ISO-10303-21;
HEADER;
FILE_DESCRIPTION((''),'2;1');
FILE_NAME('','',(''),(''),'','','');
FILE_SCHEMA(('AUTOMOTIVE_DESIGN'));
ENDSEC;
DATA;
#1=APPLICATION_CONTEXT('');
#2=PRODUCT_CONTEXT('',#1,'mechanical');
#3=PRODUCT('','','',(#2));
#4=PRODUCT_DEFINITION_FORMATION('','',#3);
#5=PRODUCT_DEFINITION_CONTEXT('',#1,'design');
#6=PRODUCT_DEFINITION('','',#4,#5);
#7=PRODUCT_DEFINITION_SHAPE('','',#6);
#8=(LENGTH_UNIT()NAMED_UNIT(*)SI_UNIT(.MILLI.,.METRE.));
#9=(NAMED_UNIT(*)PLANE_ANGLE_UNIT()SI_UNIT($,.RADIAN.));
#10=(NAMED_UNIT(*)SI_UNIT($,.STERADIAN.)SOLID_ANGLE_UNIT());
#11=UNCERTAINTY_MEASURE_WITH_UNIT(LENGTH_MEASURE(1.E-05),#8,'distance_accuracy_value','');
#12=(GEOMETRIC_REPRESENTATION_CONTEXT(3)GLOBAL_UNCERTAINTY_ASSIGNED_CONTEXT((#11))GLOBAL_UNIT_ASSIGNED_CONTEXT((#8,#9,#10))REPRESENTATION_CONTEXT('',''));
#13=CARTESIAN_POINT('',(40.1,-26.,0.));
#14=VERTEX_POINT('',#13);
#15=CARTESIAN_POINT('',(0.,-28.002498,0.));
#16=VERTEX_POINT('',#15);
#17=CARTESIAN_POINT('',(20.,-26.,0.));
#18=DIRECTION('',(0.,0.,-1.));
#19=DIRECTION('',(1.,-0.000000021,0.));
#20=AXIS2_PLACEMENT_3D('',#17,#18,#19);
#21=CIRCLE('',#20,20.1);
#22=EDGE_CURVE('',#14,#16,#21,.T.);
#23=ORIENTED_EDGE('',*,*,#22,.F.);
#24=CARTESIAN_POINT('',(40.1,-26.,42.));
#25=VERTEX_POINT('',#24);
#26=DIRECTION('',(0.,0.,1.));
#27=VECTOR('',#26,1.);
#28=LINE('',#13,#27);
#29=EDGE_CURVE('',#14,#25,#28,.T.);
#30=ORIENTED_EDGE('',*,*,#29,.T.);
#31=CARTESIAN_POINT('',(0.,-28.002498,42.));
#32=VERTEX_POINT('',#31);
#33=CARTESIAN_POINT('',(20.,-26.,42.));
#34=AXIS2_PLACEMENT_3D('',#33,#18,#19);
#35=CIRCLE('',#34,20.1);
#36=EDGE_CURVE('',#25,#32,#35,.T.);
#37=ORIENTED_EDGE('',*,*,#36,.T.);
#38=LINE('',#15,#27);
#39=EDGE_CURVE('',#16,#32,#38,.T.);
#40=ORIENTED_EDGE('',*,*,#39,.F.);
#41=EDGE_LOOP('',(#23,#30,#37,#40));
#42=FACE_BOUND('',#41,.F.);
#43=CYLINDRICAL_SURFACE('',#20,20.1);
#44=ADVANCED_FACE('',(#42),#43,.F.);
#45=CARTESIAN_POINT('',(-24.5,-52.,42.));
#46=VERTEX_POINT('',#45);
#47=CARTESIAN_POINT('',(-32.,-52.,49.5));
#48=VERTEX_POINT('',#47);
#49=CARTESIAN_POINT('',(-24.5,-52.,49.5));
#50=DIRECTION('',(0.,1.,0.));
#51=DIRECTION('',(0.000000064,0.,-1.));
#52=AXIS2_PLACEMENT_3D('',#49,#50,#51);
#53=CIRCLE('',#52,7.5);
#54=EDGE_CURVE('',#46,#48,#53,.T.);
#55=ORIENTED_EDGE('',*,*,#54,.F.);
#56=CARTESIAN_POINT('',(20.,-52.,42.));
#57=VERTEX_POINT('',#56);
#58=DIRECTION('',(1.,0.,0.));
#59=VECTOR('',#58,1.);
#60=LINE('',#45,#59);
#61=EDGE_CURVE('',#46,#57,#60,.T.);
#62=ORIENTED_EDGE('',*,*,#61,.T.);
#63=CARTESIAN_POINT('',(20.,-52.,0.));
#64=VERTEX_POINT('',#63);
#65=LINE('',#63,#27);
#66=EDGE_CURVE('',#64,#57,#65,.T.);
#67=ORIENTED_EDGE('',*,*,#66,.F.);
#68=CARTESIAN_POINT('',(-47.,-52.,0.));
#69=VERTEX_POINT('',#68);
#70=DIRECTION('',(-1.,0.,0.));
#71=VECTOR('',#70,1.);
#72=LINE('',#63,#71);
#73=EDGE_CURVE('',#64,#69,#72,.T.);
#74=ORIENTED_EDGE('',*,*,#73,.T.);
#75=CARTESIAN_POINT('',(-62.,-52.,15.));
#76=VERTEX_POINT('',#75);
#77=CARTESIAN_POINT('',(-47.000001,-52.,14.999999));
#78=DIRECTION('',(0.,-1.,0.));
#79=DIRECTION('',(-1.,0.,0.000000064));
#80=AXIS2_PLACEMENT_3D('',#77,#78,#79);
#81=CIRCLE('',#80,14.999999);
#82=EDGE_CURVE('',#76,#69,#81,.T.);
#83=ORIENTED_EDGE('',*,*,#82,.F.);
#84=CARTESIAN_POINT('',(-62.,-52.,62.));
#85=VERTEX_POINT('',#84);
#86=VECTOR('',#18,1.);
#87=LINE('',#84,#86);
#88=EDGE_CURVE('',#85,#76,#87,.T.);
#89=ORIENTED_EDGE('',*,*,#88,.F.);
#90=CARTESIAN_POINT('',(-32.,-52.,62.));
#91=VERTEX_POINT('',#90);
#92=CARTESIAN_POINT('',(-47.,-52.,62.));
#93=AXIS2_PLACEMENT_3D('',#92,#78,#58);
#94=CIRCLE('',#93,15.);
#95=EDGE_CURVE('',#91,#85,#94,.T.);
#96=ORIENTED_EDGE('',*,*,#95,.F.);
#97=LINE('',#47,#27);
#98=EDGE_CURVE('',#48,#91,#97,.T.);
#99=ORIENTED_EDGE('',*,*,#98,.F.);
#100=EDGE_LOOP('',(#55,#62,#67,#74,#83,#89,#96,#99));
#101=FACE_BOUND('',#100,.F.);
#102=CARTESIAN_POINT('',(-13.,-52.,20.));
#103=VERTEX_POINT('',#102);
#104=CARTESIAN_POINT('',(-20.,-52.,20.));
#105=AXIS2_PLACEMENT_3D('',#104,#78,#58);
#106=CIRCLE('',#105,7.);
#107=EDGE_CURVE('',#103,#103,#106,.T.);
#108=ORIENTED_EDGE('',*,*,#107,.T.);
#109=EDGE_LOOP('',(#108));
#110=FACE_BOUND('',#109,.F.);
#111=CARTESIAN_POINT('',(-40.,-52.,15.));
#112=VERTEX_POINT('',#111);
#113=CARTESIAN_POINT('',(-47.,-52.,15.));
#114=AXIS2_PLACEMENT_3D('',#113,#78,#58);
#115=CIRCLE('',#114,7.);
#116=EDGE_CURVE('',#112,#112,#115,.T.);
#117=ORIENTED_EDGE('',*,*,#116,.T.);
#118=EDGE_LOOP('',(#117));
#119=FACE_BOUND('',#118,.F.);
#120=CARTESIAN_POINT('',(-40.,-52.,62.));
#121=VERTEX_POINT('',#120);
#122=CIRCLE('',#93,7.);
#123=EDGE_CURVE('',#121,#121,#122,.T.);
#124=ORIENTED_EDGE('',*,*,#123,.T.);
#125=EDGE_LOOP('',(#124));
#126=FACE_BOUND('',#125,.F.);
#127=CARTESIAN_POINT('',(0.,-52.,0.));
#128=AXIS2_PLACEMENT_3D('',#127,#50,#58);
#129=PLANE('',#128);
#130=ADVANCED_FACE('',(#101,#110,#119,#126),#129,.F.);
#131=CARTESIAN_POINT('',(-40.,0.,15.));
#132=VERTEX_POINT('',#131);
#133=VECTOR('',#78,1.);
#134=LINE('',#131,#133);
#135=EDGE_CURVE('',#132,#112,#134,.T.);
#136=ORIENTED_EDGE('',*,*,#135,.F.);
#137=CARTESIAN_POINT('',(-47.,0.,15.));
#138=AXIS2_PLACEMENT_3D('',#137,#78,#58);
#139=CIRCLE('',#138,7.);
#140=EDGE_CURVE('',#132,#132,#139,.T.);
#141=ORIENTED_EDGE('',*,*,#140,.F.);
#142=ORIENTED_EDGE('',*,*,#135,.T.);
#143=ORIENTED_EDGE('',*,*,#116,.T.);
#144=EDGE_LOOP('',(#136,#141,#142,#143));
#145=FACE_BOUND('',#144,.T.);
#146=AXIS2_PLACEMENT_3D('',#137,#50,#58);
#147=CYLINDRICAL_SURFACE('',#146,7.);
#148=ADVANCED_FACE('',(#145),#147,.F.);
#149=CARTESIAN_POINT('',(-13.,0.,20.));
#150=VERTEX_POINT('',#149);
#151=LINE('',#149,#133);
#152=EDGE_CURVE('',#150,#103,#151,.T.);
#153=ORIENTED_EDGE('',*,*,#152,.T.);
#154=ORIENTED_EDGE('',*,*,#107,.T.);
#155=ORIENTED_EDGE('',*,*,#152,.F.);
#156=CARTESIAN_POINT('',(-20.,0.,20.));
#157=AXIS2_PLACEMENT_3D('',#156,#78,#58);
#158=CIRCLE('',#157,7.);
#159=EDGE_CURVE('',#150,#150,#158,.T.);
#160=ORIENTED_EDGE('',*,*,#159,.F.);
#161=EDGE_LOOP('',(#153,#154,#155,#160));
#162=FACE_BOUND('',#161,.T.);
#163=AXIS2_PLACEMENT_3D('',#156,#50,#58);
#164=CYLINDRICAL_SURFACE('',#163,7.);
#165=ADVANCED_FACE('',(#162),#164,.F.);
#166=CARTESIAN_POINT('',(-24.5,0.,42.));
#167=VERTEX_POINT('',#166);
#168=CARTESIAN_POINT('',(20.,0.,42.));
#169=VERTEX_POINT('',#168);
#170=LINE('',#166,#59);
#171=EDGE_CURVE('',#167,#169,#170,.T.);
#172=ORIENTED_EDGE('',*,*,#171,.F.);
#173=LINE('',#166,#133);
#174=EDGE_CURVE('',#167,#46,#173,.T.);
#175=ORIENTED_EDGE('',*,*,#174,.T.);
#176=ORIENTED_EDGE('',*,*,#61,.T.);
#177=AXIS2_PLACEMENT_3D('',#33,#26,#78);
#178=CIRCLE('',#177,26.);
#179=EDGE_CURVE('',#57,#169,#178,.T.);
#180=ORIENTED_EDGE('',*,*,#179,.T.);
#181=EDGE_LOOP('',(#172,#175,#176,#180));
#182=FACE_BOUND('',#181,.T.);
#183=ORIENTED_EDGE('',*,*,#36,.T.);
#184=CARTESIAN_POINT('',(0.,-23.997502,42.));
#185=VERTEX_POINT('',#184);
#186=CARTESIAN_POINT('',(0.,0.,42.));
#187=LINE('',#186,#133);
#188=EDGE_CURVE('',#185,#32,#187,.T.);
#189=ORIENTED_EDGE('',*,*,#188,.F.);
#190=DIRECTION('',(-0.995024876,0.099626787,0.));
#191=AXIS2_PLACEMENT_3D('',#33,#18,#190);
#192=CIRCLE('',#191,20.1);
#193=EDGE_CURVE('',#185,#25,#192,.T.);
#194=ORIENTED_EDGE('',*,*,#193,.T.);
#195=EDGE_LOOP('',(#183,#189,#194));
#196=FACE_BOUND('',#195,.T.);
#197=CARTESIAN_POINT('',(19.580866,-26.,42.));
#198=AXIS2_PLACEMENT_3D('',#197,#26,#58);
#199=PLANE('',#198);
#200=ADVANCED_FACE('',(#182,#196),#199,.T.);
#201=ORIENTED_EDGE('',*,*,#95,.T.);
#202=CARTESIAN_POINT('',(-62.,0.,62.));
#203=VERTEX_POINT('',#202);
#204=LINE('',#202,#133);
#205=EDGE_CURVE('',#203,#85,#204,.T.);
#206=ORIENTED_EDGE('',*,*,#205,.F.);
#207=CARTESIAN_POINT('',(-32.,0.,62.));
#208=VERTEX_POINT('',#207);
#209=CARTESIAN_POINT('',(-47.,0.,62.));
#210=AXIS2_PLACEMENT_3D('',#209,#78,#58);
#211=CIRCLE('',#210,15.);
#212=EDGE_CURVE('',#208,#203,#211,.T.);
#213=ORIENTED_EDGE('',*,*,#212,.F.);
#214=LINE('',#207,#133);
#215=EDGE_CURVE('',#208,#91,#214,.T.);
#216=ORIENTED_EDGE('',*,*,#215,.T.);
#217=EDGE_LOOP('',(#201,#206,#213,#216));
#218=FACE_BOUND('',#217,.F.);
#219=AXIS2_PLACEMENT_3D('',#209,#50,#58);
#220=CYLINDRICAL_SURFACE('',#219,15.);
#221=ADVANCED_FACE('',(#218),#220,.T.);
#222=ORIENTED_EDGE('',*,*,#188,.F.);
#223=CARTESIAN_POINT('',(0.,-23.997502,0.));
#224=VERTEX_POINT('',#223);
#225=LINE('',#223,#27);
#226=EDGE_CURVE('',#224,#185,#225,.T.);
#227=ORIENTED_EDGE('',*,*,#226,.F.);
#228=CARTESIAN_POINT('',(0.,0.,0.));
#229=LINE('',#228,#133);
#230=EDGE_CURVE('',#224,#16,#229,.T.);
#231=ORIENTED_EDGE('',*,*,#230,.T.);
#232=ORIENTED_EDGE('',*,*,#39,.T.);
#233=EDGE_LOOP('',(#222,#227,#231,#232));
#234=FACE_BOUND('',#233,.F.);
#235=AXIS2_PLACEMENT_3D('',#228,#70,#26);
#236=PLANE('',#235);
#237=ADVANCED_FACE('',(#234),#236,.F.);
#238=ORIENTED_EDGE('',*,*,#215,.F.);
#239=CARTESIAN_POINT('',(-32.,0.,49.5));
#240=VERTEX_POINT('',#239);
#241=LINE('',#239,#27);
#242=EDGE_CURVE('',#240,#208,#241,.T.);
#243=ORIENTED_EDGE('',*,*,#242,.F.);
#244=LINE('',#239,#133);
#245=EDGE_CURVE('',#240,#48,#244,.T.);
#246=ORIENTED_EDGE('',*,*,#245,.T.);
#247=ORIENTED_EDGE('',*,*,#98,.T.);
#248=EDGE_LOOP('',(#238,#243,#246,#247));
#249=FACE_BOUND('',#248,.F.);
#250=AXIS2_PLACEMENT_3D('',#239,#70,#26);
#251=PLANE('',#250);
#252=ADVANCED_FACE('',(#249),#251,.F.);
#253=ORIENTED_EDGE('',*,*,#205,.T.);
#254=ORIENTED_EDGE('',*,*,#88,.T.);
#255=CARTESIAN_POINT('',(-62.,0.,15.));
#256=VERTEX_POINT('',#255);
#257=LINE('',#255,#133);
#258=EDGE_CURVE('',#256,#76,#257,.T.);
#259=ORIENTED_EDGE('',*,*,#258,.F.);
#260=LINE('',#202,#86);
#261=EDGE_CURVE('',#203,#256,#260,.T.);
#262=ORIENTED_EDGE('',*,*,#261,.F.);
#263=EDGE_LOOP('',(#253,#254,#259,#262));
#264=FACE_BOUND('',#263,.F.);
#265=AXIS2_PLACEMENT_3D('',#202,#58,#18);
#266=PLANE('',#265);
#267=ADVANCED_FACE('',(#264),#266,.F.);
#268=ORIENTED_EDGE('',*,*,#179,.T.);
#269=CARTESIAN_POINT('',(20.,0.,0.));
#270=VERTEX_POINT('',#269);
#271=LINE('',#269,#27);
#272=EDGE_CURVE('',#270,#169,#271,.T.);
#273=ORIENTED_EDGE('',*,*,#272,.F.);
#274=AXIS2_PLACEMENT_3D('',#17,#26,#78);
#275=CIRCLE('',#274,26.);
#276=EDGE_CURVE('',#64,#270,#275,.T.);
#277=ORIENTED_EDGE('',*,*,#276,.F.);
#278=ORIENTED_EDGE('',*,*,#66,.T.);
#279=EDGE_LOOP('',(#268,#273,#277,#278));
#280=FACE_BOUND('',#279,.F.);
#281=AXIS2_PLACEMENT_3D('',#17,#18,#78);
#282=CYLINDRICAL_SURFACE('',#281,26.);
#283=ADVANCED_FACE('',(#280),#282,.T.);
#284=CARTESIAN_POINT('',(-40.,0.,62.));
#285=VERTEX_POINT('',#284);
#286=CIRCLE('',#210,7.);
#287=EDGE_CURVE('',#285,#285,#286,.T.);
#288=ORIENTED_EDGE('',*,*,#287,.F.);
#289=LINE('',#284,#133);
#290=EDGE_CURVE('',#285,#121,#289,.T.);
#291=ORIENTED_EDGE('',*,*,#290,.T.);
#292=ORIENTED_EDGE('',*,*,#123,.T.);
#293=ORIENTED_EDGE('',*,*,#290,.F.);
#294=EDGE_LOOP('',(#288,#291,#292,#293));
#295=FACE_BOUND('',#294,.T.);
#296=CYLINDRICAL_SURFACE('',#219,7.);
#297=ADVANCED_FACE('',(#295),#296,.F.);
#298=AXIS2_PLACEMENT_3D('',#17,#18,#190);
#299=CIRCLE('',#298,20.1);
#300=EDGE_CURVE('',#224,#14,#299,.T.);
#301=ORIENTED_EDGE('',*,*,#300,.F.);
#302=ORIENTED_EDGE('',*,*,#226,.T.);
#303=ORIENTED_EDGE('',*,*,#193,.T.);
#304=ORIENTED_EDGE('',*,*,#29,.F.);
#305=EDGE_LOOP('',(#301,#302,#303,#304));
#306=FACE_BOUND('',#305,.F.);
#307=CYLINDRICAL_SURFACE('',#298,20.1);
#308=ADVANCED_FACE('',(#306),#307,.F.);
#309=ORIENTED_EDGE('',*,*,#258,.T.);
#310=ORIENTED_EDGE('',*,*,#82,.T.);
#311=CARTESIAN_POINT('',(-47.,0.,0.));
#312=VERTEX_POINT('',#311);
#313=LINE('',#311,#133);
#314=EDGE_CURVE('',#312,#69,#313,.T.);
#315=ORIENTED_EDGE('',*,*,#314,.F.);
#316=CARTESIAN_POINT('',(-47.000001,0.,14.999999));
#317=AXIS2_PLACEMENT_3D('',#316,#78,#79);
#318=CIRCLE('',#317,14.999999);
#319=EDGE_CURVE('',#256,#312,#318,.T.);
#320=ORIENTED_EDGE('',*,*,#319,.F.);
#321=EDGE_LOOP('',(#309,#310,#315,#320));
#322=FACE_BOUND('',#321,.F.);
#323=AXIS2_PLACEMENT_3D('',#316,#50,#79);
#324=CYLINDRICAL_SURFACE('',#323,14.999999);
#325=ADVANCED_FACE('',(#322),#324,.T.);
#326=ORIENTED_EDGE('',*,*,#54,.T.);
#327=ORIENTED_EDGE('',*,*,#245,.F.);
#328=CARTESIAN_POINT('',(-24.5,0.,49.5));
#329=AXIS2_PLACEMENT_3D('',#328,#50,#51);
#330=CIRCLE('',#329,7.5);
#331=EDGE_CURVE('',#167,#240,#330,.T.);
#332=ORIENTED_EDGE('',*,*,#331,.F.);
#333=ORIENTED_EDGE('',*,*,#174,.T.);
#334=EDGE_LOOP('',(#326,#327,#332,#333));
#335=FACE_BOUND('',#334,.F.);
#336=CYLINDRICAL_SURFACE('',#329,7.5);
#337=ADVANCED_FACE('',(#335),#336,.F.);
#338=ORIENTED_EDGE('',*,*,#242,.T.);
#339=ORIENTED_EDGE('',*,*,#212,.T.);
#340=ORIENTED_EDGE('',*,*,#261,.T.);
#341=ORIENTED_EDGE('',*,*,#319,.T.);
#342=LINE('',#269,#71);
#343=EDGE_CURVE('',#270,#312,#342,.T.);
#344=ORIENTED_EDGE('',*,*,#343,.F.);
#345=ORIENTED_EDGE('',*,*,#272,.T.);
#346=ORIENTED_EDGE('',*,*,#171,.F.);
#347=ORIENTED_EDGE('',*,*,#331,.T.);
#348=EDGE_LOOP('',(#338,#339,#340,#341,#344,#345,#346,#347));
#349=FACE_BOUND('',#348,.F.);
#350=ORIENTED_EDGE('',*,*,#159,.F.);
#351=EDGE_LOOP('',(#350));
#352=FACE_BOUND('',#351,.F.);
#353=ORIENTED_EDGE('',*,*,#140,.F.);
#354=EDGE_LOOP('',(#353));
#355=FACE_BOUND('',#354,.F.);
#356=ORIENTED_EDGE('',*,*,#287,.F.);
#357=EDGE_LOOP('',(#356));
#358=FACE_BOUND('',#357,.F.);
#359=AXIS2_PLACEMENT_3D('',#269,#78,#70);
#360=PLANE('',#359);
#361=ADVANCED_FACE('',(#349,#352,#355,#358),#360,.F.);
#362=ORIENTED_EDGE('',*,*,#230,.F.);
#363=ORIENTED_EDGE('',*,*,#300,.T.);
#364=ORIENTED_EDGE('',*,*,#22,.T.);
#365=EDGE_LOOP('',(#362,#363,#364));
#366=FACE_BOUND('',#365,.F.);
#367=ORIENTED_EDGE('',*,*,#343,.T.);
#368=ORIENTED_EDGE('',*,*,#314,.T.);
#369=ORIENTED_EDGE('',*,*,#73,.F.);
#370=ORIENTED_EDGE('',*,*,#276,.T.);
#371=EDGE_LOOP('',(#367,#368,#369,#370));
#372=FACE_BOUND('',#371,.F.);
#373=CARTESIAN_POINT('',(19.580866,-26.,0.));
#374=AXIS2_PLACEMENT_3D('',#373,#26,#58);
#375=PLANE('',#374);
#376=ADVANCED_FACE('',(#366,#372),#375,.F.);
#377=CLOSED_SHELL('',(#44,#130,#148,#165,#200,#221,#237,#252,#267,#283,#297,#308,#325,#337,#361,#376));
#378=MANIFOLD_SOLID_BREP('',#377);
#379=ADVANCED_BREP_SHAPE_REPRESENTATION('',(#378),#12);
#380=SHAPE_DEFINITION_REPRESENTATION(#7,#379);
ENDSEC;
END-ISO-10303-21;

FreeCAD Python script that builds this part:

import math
import FreeCAD as App
import Part
import Sketcher

V = App.Vector
Q = App.Units.Quantity

doc = App.newDocument("Part")
body = doc.addObject("PartDesign::Body", "Body")

# Sketch on XZ plane
sketch1 = doc.addObject("Sketcher::SketchObject", "Sketch")
body.addObject(sketch1)
sketch1.AttachmentSupport = (doc.XZ_Plane, [""])
sketch1.MapMode = "FlatFace"
sketch1.addGeometry([
    Part.LineSegment(V(-47, 0, 0), V(0, 0, 0)),  # 0
    Part.LineSegment(V(0, 0, 0), V(0, 42, 0)),  # 1
    Part.LineSegment(V(0, 42, 0), V(-24.5, 42, 0)),  # 2
    Part.ArcOfCircle(Part.Circle(V(-24.5, 49.5, 0), V(0, 0, 1), 7.5), math.radians(179.999996), math.radians(270.000004)),  # 3
    Part.LineSegment(V(-32, 49.5, 0), V(-32, 62, 0)),  # 4
    Part.ArcOfCircle(Part.Circle(V(-47, 62, 0), V(0, 0, 1), 15), math.radians(0), math.radians(180)),  # 5
    Part.LineSegment(V(-62, 62, 0), V(-62, 15, 0)),  # 6
    Part.ArcOfCircle(Part.Circle(V(-47.000001, 14.999999, 0), V(0, 0, 1), 14.999999), math.radians(179.999996), math.radians(270.000004)),  # 7
    Part.Circle(V(-47, 15, 0), V(0, 0, 1), 7),  # 8
    Part.Circle(V(-20, 20, 0), V(0, 0, 1), 7),  # 9
    Part.Circle(V(-47, 62, 0), V(0, 0, 1), 7),  # 10
], False)
sketch1.addConstraint([
    Sketcher.Constraint("Coincident", 0, 2, 1, 1),
    Sketcher.Constraint("Coincident", 1, 2, 2, 1),
    Sketcher.Constraint("Tangent", 2, 2, 3, 2),
    Sketcher.Constraint("Tangent", 3, 1, 4, 1),
    Sketcher.Constraint("Tangent", 4, 2, 5, 1),
    Sketcher.Constraint("Tangent", 5, 2, 6, 1),
    Sketcher.Constraint("Tangent", 6, 2, 7, 1),
    Sketcher.Constraint("Tangent", 7, 2, 0, 1),
    Sketcher.Constraint("Horizontal", 0),
    Sketcher.Constraint("Vertical", 1),
    Sketcher.Constraint("Horizontal", 2),
    Sketcher.Constraint("Vertical", 4),
    Sketcher.Constraint("Vertical", 6),
    Sketcher.Constraint("Coincident", 0, 2, -1, 1),
    Sketcher.Constraint("Coincident", 8, 3, 7, 3),
    Sketcher.Constraint("Coincident", 10, 3, 5, 3),
    Sketcher.Constraint("Equal", 5, 7),
    Sketcher.Constraint("Equal", 8, 9),
    Sketcher.Constraint("Equal", 9, 10),
    Sketcher.Constraint("Equal", 0, 6),
    Sketcher.Constraint("Diameter", 8, Q("14 mm")),
    Sketcher.Constraint("Radius", 5, Q("15 mm")),
    Sketcher.Constraint("Radius", 3, Q("7.5 mm")),
    Sketcher.Constraint("DistanceX", 0, 1, 0, 2, Q("47 mm")),
    Sketcher.Constraint("DistanceY", 1, 1, 1, 2, Q("42 mm")),
    Sketcher.Constraint("DistanceX", 9, 3, -1, 1, Q("20 mm")),
    Sketcher.Constraint("DistanceY", -1, 1, 9, 3, Q("20 mm")),
])
pad1 = doc.addObject("PartDesign::Pad", "Pad")
body.addObject(pad1)
pad1.Profile = sketch1
pad1.Length = 52

# Sketch on XY plane
sketch2 = doc.addObject("Sketcher::SketchObject", "Sketch001")
body.addObject(sketch2)
sketch2.AttachmentSupport = (doc.XY_Plane, [""])
sketch2.MapMode = "FlatFace"
sketch2.addGeometry([
    Part.LineSegment(V(20, 0, 0), V(0, 0, 0)),  # 0
    Part.LineSegment(V(0, 0, 0), V(0, -23.997502, 0)),  # 1
    Part.ArcOfCircle(Part.Circle(V(20, -26, 0), V(0, 0, 1), 20.1), math.radians(0.000001), math.radians(174.28232)),  # 2
    Part.ArcOfCircle(Part.Circle(V(20, -26, 0), V(0, 0, 1), 20.1), math.radians(-174.28232), math.radians(-0.000001)),  # 3
    Part.LineSegment(V(0, -28.002498, 0), V(0, -52, 0)),  # 4
    Part.LineSegment(V(0, -52, 0), V(20, -52, 0)),  # 5
    Part.ArcOfCircle(Part.Circle(V(20, -26, 0), V(0, 0, 1), 26), math.radians(-90), math.radians(90)),  # 6
], False)
sketch2.addConstraint([
    Sketcher.Constraint("Coincident", 0, 2, 1, 1),
    Sketcher.Constraint("Coincident", 1, 2, 2, 2),
    Sketcher.Constraint("Tangent", 2, 1, 3, 2),
    Sketcher.Constraint("Coincident", 3, 1, 4, 1),
    Sketcher.Constraint("Coincident", 4, 2, 5, 1),
    Sketcher.Constraint("Tangent", 5, 2, 6, 1),
    Sketcher.Constraint("Tangent", 6, 2, 0, 1),
    Sketcher.Constraint("Horizontal", 0),
    Sketcher.Constraint("Vertical", 1),
    Sketcher.Constraint("Vertical", 4),
    Sketcher.Constraint("Horizontal", 5),
    Sketcher.Constraint("Coincident", 0, 2, -1, 1),
    Sketcher.Constraint("Coincident", 6, 3, 2, 3),
    Sketcher.Constraint("Equal", 2, 3),
    Sketcher.Constraint("PointOnObject", 3, 1, -2),
    Sketcher.Constraint("Horizontal", 6, 3, 2, 1),
    Sketcher.Constraint("Radius", 6, Q("26 mm")),
    Sketcher.Constraint("Radius", 2, Q("20.1 mm")),
    Sketcher.Constraint("DistanceX", 0, 2, 0, 1, Q("20 mm")),
])
pad2 = doc.addObject("PartDesign::Pad", "Pad001")
body.addObject(pad2)
pad2.Profile = sketch2
pad2.Length = 42

doc.recompute()
